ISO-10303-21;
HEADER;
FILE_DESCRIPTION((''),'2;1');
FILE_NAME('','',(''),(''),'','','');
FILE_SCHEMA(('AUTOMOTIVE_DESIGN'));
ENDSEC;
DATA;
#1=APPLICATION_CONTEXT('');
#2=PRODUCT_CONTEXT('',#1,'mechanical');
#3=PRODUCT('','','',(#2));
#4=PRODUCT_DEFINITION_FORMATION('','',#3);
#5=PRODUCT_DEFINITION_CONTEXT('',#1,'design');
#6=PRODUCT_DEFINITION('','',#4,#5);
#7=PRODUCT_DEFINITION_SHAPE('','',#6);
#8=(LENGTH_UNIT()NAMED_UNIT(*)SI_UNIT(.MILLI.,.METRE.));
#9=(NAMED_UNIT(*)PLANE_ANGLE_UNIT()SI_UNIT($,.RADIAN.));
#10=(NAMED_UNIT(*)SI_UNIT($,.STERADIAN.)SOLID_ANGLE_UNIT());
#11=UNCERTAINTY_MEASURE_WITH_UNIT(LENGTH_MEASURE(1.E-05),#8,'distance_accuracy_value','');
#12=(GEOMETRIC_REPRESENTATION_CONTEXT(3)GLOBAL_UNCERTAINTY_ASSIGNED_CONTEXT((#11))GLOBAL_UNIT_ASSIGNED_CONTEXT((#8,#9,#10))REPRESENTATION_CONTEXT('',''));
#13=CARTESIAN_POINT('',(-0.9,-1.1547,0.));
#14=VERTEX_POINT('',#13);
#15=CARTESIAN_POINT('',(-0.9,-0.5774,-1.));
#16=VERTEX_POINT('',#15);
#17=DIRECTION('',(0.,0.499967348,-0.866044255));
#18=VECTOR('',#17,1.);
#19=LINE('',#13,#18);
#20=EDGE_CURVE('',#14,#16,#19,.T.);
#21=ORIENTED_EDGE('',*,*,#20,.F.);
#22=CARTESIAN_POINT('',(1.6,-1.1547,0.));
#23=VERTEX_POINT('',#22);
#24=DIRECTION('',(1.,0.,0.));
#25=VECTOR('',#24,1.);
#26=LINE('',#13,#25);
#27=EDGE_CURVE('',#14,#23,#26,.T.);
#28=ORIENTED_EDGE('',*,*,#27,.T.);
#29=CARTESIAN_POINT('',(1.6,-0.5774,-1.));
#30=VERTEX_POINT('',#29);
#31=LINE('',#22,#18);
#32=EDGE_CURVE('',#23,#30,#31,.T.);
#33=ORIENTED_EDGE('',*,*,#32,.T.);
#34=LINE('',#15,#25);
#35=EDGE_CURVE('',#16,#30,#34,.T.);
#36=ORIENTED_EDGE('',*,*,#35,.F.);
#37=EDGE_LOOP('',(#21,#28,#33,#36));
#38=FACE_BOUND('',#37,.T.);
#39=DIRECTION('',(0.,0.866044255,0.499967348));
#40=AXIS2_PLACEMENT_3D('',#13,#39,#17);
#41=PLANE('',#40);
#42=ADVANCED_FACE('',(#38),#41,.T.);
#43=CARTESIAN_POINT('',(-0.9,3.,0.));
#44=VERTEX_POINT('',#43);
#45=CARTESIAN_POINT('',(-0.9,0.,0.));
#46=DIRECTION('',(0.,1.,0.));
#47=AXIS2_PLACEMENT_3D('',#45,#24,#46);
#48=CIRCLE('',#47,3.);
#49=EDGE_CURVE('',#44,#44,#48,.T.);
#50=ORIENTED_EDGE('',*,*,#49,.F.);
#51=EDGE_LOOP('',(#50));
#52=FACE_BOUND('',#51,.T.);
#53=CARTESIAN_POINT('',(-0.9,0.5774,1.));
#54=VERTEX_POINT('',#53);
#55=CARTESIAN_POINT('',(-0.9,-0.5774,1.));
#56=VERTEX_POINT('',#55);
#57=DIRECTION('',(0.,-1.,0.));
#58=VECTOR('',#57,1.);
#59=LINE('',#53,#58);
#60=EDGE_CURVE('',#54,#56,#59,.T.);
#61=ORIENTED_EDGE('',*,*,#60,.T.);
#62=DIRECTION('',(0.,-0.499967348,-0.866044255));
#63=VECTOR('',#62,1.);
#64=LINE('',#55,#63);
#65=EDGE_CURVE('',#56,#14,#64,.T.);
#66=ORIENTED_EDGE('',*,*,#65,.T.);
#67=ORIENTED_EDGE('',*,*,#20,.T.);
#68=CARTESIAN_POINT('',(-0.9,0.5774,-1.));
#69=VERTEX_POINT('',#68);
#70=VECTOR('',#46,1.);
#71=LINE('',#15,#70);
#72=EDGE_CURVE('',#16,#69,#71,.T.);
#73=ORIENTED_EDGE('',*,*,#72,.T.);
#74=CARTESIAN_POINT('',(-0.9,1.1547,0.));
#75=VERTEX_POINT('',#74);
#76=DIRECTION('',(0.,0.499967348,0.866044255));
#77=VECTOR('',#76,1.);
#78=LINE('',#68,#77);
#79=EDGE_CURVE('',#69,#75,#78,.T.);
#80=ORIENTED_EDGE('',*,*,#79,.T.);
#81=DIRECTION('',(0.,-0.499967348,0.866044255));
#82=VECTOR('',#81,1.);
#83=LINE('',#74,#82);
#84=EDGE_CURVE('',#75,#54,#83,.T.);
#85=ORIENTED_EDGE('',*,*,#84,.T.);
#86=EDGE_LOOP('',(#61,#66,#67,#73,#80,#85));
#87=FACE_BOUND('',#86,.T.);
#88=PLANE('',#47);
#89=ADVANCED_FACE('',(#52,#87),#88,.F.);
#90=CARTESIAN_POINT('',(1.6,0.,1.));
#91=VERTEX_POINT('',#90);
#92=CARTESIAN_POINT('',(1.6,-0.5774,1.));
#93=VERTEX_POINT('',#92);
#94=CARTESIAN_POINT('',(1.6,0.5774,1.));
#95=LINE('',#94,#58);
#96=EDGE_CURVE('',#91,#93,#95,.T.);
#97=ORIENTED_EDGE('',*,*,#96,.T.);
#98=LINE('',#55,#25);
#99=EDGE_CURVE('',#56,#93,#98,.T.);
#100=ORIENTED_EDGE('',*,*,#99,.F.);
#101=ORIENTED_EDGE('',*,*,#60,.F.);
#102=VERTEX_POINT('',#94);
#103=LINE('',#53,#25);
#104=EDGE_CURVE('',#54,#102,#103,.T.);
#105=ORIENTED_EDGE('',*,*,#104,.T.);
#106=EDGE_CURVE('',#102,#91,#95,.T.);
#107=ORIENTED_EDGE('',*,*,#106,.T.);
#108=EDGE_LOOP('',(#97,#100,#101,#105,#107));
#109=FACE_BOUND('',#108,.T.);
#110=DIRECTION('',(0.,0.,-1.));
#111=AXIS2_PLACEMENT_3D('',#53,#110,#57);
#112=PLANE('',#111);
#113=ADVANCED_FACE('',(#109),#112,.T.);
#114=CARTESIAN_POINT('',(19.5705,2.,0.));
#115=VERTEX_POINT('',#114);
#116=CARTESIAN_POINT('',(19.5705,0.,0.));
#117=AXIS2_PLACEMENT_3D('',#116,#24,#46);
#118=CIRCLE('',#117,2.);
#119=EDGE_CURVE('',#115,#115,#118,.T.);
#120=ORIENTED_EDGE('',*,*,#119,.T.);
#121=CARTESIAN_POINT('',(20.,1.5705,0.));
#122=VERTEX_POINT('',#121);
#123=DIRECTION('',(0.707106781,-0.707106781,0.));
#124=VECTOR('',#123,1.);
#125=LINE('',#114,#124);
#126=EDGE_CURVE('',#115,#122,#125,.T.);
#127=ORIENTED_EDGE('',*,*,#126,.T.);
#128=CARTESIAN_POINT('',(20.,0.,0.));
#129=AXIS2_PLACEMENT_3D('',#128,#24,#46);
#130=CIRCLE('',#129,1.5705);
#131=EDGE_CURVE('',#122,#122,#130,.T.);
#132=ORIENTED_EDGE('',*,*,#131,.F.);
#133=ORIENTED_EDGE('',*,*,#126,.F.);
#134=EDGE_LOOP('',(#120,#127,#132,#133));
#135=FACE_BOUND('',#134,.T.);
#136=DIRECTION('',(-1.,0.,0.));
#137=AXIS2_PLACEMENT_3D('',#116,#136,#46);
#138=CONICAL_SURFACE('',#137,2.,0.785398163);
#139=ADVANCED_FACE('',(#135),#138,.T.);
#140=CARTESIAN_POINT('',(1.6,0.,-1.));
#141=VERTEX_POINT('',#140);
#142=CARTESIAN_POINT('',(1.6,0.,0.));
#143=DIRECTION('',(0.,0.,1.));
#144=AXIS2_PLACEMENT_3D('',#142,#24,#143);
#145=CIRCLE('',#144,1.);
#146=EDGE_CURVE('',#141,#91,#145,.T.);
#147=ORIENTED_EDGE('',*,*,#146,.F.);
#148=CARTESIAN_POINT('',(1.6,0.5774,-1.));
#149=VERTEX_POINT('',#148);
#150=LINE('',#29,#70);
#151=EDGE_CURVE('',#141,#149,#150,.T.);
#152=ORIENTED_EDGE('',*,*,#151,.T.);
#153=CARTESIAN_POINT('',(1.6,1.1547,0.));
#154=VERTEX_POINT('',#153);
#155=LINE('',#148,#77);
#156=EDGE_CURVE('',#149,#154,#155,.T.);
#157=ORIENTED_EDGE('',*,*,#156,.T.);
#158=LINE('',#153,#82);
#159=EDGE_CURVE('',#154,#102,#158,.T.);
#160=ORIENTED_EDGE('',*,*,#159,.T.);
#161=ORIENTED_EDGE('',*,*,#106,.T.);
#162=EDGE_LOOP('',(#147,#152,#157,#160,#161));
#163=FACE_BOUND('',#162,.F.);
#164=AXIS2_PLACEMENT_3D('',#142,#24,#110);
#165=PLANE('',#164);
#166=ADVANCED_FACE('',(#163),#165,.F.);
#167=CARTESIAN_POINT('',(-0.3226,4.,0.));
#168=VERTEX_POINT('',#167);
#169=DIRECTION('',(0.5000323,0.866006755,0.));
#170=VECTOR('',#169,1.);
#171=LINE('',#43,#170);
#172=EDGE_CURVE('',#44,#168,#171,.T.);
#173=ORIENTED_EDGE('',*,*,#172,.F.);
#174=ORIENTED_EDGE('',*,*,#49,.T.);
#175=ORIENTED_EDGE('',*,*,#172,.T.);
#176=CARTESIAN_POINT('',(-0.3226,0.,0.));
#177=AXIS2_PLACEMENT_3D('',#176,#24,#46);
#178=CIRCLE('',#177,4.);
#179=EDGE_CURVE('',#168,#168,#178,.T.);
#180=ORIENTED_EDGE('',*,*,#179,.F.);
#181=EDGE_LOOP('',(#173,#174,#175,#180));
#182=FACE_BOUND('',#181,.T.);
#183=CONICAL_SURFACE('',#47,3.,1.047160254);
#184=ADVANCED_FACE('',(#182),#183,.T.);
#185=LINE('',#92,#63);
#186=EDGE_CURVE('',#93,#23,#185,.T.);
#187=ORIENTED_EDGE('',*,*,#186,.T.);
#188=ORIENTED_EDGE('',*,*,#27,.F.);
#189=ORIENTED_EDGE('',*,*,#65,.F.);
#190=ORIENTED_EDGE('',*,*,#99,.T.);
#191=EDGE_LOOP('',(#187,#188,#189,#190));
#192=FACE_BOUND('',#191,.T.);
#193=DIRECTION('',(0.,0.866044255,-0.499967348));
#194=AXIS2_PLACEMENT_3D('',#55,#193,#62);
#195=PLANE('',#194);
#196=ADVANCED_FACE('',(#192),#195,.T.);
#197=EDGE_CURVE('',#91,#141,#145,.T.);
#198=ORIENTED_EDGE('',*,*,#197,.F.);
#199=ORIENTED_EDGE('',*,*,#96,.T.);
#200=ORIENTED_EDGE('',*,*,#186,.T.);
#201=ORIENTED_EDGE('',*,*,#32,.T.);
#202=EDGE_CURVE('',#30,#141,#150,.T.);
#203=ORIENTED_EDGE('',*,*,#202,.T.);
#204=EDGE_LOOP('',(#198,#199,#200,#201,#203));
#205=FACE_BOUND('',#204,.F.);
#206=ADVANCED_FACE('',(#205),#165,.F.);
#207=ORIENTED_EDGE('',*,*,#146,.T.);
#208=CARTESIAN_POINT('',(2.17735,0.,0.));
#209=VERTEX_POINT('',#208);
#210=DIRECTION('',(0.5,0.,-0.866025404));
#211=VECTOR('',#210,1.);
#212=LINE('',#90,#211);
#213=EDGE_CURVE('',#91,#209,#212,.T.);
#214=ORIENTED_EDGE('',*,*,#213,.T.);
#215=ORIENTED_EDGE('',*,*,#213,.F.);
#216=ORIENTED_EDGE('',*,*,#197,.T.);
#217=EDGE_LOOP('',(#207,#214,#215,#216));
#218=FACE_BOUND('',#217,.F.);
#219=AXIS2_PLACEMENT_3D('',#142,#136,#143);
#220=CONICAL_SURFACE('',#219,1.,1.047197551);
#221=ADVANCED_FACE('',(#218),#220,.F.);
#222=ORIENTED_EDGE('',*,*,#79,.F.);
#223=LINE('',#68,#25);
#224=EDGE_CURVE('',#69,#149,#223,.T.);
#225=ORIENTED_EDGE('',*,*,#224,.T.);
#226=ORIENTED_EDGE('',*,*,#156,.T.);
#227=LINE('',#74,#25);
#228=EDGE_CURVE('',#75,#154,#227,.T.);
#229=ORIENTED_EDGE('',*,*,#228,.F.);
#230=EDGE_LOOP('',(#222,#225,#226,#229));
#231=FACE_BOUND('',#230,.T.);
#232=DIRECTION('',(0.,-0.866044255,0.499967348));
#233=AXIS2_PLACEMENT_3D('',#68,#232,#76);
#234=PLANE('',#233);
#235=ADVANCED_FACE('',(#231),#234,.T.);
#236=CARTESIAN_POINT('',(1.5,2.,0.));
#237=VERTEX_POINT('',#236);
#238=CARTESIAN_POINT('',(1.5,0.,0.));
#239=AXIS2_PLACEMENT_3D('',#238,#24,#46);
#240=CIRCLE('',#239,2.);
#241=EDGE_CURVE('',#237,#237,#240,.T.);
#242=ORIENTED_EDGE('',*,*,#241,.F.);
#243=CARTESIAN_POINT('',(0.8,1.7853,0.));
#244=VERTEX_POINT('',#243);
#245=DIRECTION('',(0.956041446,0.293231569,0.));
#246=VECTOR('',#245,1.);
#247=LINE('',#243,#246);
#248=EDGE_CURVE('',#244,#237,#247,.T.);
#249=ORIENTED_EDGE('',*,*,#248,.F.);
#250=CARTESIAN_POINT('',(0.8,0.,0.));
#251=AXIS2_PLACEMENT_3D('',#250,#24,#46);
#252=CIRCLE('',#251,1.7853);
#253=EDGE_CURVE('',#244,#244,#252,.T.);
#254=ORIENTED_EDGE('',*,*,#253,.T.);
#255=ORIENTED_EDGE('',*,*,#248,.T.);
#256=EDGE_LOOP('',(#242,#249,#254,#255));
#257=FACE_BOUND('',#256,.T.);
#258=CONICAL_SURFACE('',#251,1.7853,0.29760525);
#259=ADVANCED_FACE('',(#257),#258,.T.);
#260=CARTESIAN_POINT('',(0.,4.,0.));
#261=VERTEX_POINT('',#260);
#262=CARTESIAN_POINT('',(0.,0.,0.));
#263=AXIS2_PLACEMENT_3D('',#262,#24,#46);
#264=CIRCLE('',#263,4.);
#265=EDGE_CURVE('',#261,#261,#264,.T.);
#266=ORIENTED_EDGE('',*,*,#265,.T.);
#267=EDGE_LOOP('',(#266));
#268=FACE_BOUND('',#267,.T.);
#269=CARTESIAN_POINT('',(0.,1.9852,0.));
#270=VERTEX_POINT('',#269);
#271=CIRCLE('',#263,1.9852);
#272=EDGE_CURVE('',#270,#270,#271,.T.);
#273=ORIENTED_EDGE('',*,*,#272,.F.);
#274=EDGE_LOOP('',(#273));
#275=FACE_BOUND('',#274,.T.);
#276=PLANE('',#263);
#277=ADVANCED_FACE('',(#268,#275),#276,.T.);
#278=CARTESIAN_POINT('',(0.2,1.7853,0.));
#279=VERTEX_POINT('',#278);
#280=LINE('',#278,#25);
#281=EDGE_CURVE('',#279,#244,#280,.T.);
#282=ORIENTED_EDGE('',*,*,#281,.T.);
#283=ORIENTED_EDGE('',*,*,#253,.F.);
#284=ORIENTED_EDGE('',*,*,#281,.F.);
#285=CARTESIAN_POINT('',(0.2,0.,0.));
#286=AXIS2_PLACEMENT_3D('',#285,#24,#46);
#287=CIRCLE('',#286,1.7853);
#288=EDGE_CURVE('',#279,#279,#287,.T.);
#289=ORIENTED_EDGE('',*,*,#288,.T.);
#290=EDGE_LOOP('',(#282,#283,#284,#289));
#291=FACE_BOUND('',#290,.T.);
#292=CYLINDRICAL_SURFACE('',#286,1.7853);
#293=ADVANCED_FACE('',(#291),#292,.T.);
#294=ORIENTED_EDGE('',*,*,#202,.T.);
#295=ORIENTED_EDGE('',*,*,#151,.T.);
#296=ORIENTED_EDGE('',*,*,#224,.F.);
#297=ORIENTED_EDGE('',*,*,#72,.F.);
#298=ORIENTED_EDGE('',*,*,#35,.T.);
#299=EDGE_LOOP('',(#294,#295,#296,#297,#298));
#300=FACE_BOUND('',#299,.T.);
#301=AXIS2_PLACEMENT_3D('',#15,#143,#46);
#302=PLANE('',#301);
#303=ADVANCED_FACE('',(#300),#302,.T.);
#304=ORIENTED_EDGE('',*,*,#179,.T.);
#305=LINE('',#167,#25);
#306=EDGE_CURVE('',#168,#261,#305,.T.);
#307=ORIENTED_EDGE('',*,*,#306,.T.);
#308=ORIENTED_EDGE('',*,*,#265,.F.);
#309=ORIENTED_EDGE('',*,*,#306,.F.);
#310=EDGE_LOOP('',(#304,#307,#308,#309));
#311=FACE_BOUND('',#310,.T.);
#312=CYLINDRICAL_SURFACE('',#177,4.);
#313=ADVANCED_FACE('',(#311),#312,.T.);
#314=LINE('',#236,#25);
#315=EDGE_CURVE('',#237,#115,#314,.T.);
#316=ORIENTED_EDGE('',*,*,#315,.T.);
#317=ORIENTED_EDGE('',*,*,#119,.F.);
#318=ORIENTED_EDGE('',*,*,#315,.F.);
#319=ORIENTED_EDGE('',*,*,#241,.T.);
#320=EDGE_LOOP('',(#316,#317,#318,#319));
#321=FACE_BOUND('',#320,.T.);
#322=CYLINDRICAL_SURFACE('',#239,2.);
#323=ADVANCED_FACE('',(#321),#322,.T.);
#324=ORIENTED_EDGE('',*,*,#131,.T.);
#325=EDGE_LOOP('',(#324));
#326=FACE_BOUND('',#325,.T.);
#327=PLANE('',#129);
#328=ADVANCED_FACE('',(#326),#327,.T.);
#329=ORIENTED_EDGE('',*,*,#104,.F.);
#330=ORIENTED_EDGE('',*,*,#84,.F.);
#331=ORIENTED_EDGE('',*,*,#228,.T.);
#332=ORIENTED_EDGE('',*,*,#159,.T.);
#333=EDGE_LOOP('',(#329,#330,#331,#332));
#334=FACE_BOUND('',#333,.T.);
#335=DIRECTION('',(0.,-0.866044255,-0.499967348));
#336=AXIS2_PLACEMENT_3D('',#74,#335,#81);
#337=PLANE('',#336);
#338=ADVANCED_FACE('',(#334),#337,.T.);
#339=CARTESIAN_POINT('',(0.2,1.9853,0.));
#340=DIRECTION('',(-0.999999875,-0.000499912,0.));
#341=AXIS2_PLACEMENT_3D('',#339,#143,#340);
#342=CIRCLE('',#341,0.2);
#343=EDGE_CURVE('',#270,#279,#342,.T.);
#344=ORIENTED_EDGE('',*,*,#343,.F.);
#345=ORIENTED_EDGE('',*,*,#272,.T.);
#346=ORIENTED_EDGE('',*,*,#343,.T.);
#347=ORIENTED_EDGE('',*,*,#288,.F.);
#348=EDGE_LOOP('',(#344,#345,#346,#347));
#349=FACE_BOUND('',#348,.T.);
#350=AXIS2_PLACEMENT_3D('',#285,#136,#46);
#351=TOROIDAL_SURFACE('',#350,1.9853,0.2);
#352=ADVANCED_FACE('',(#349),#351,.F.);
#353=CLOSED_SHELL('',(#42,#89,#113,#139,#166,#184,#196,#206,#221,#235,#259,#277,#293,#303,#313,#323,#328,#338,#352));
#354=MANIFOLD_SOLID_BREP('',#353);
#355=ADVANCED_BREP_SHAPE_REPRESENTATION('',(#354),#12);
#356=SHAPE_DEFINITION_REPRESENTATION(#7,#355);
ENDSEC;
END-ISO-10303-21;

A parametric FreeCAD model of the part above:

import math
import FreeCAD as App
import Part
import Sketcher
from FreeCAD import Vector
Q = App.Units.Quantity

doc = App.newDocument("Part")
params = doc.addObject("Spreadsheet::Sheet", "Params")
for row, (alias, value) in enumerate([
    ("sketch1_radius", "0.2 mm"),
    ("sketch1_height", "3 mm"),
    ("sketch1_width", "20.9 mm"),
    ("sketch1_width2", "0.6 mm"),
    ("revolution_angle", "360 deg"),
    ("sketch2_diameter", "2 mm"),
    ("hole_diameter", "2 mm"),
    ("hole_depth", "2.5 mm"),
    ("pocket1_length", "2.5 mm"),
], start=1):
    params.set(f"A{row}", alias)
    params.set(f"B{row}", "=" + value)
    params.setAlias(f"B{row}", alias)

body = doc.addObject("PartDesign::Body", "Body")

sketch1 = doc.addObject("Sketcher::SketchObject", "Sketch")
body.addObject(sketch1)
sketch1.AttachmentSupport = (doc.XY_Plane, [""])
sketch1.MapMode = "FlatFace"
sketch1.addGeometry(Part.LineSegment(Vector(-0.9, 0, 0), Vector(20, 0, 0)), False)
sketch1.addGeometry(Part.LineSegment(Vector(20, 0, 0), Vector(20, 1.57, 0)), False)
sketch1.addGeometry(Part.LineSegment(Vector(20, 1.57, 0), Vector(19.57, 2, 0)), False)
sketch1.addGeometry(Part.LineSegment(Vector(19.57, 2, 0), Vector(1.5, 2, 0)), False)
sketch1.addGeometry(Part.LineSegment(Vector(1.5, 2, 0), Vector(0.8, 1.79, 0)), False)
sketch1.addGeometry(Part.LineSegment(Vector(0.8, 1.79, 0), Vector(0.2, 1.79, 0)), False)
sketch1.addGeometry(Part.ArcOfCircle(Part.Circle(Vector(0.2, 1.99, 0), Vector(0, 0, 1), 0.2), math.radians(-180), math.radians(-90)), False)
sketch1.addGeometry(Part.LineSegment(Vector(0, 1.99, 0), Vector(0, 4, 0)), False)
sketch1.addGeometry(Part.LineSegment(Vector(0, 4, 0), Vector(-0.32, 4, 0)), False)
sketch1.addGeometry(Part.LineSegment(Vector(-0.32, 4, 0), Vector(-0.9, 3, 0)), False)
sketch1.addGeometry(Part.LineSegment(Vector(-0.9, 3, 0), Vector(-0.9, 0, 0)), False)
sketch1.addConstraint(Sketcher.Constraint("Coincident", 0, 2, 1, 1))
sketch1.addConstraint(Sketcher.Constraint("Coincident", 1, 2, 2, 1))
sketch1.addConstraint(Sketcher.Constraint("Coincident", 2, 2, 3, 1))
sketch1.addConstraint(Sketcher.Constraint("Coincident", 3, 2, 4, 1))
sketch1.addConstraint(Sketcher.Constraint("Coincident", 4, 2, 5, 1))
sketch1.addConstraint(Sketcher.Constraint("Tangent", 5, 2, 6, 2))
sketch1.addConstraint(Sketcher.Constraint("Tangent", 6, 1, 7, 1))
sketch1.addConstraint(Sketcher.Constraint("Coincident", 7, 2, 8, 1))
sketch1.addConstraint(Sketcher.Constraint("Coincident", 8, 2, 9, 1))
sketch1.addConstraint(Sketcher.Constraint("Coincident", 9, 2, 10, 1))
sketch1.addConstraint(Sketcher.Constraint("Coincident", 10, 2, 0, 1))
sketch1.addConstraint(Sketcher.Constraint("Horizontal", 0))
sketch1.addConstraint(Sketcher.Constraint("Vertical", 1))
sketch1.addConstraint(Sketcher.Constraint("Horizontal", 3))
sketch1.addConstraint(Sketcher.Constraint("Horizontal", 5))
sketch1.addConstraint(Sketcher.Constraint("Vertical", 7))
sketch1.addConstraint(Sketcher.Constraint("Horizontal", 8))
sketch1.addConstraint(Sketcher.Constraint("Vertical", 10))
sketch1.addConstraint(Sketcher.Constraint("PointOnObject", 0, 2, -1))
sketch1.addConstraint(Sketcher.Constraint("PointOnObject", 6, 1, -2))
sketch1.addConstraint(Sketcher.Constraint("Radius", 6, Q("0.2 mm")))
sketch1.addConstraint(Sketcher.Constraint("DistanceY", 10, 2, 10, 1, Q("3 mm")))
sketch1.addConstraint(Sketcher.Constraint("Angle", 2, Q("135 deg")))
sketch1.addConstraint(Sketcher.Constraint("DistanceX", 0, 1, 0, 2, Q("20.9 mm")))
sketch1.addConstraint(Sketcher.Constraint("DistanceX", 5, 2, 5, 1, Q("0.6 mm")))
sketch1.addConstraint(Sketcher.Constraint("DistanceX", -1, 1, 0, 2, Q("20 mm")))
sketch1.addConstraint(Sketcher.Constraint("DistanceY", -1, 1, 2, 2, Q("2 mm")))
sketch1.addConstraint(Sketcher.Constraint("DistanceY", -1, 1, 7, 2, Q("4 mm")))
sketch1.addConstraint(Sketcher.Constraint("DistanceX", -1, 1, 3, 2, Q("1.5 mm")))
sketch1.addConstraint(Sketcher.Constraint("DistanceX", 3, 2, 3, 1, Q("18.0705 mm")))
sketch1.addConstraint(Sketcher.Constraint("DistanceX", 8, 2, 8, 1, Q("0.3226 mm")))
sketch1.addConstraint(Sketcher.Constraint("DistanceY", 7, 1, 7, 2, Q("2.0148 mm")))
sketch1.setExpression("Constraints[20]", "Params.sketch1_radius")
sketch1.setExpression("Constraints[21]", "Params.sketch1_height")
sketch1.setExpression("Constraints[23]", "Params.sketch1_width")
sketch1.setExpression("Constraints[24]", "Params.sketch1_width2")
revolution = doc.addObject("PartDesign::Revolution", "Revolution")
body.addObject(revolution)
revolution.Profile = sketch1
revolution.ReferenceAxis = (sketch1, ["H_Axis"])
revolution.setExpression("Angle", "Params.revolution_angle")

sketch2 = doc.addObject("Sketcher::SketchObject", "Sketch001")
body.addObject(sketch2)
sketch2.AttachmentSupport = (doc.YZ_Plane, [""])
sketch2.MapMode = "FlatFace"
sketch2.AttachmentOffset = App.Placement(Vector(0, 0, -0.9), App.Rotation())
sketch2.addGeometry(Part.Circle(Vector(0, 0, 0), Vector(0, 0, 1), 1), False)
sketch2.addConstraint(Sketcher.Constraint("Coincident", 0, 3, -1, 1))
sketch2.addConstraint(Sketcher.Constraint("Diameter", 0, Q("2 mm")))
sketch2.setExpression("Constraints[1]", "Params.sketch2_diameter")
doc.recompute()
hole = doc.addObject("PartDesign::Hole", "Hole")
body.addObject(hole)
hole.Profile = sketch2
hole.ThreadType = "None"
hole.setExpression("Diameter", "Params.hole_diameter")
hole.DepthType = "Dimension"
hole.setExpression("Depth", "Params.hole_depth")
hole.DrillPoint = "Angled"
hole.DrillPointAngle = 120
hole.Reversed = True

sketch3 = doc.addObject("Sketcher::SketchObject", "Sketch002")
body.addObject(sketch3)
sketch3.AttachmentSupport = (doc.YZ_Plane, [""])
sketch3.MapMode = "FlatFace"
sketch3.AttachmentOffset = App.Placement(Vector(0, 0, -0.9), App.Rotation())
sketch3.addGeometry(Part.LineSegment(Vector(0.6, 1, 0), Vector(-0.6, 1, 0)), False)
sketch3.addGeometry(Part.LineSegment(Vector(-0.6, 1, 0), Vector(-1.2, 0, 0)), False)
sketch3.addGeometry(Part.LineSegment(Vector(-1.2, 0, 0), Vector(-0.6, -1, 0)), False)
sketch3.addGeometry(Part.LineSegment(Vector(-0.6, -1, 0), Vector(0.6, -1, 0)), False)
sketch3.addGeometry(Part.LineSegment(Vector(0.6, -1, 0), Vector(1.2, 0, 0)), False)
sketch3.addGeometry(Part.LineSegment(Vector(1.2, 0, 0), Vector(0.6, 1, 0)), False)
sketch3.addConstraint(Sketcher.Constraint("Coincident", 0, 2, 1, 1))
sketch3.addConstraint(Sketcher.Constraint("Coincident", 1, 2, 2, 1))
sketch3.addConstraint(Sketcher.Constraint("Coincident", 2, 2, 3, 1))
sketch3.addConstraint(Sketcher.Constraint("Coincident", 3, 2, 4, 1))
sketch3.addConstraint(Sketcher.Constraint("Coincident", 4, 2, 5, 1))
sketch3.addConstraint(Sketcher.Constraint("Coincident", 5, 2, 0, 1))
sketch3.addConstraint(Sketcher.Constraint("Horizontal", 0))
sketch3.addConstraint(Sketcher.Constraint("Horizontal", 3))
sketch3.addConstraint(Sketcher.Constraint("Symmetric", 0, 2, 3, 2, -1, 1))
sketch3.addConstraint(Sketcher.Constraint("Symmetric", 1, 2, 4, 2, -1, 1))
sketch3.addConstraint(Sketcher.Constraint("PointOnObject", 1, 2, -1))
sketch3.addConstraint(Sketcher.Constraint("Parallel", 2, 5))
sketch3.addConstraint(Sketcher.Constraint("Vertical", 0, 2, 2, 2))
sketch3.addConstraint(Sketcher.Constraint("DistanceY", -1, 1, 0, 2, Q("1 mm")))
sketch3.addConstraint(Sketcher.Constraint("DistanceX", 0, 2, 0, 1, Q("1.1548 mm")))
sketch3.addConstraint(Sketcher.Constraint("DistanceX", 1, 2, 3, 2, Q("1.732 mm")))
pocket1 = doc.addObject("PartDesign::Pocket", "Pocket")
body.addObject(pocket1)
pocket1.Profile = sketch3
pocket1.setExpression("Length", "Params.pocket1_length")
pocket1.Reversed = True

doc.recompute()
